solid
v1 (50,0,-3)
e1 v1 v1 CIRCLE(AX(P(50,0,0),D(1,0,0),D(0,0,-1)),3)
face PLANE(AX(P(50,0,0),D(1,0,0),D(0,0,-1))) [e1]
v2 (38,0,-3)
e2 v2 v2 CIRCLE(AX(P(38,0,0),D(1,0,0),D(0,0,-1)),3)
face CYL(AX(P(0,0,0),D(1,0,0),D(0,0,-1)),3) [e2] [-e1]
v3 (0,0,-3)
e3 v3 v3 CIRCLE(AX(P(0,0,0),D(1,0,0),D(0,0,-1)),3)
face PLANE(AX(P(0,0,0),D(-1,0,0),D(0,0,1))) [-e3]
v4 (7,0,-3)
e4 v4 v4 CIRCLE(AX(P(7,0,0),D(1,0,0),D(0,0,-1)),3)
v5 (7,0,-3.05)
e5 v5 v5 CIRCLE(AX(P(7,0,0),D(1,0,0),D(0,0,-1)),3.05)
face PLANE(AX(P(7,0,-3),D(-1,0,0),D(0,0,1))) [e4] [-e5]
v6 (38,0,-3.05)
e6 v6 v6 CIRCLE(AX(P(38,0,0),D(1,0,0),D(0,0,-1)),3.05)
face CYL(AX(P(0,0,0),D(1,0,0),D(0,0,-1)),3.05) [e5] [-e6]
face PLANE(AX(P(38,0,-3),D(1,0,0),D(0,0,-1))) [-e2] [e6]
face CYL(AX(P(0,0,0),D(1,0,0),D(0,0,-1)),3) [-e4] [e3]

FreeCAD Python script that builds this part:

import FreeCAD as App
import Part
import Sketcher

V = App.Vector
Q = App.Units.Quantity


def add_polygon(sketch, points):
    """Adds a closed chain of lines whose ends are joined by coincident constraints."""
    first, n = sketch.GeometryCount, len(points)
    for a, b in zip(points, points[1:] + points[:1]):
        sketch.addGeometry(Part.LineSegment(App.Vector(*a, 0), App.Vector(*b, 0)), False)
    for i in range(n):
        sketch.addConstraint(Sketcher.Constraint("Coincident", first + i, 2, first + (i + 1) % n, 1))

doc = App.newDocument("Part")
body = doc.addObject("PartDesign::Body", "Body")

# Sketch on XZ plane
sketch1 = body.newObject("Sketcher::SketchObject", "Sketch")
sketch1.AttachmentSupport = (doc.getObject("XZ_Plane"), [""])
sketch1.MapMode = "FlatFace"
add_polygon(sketch1, [(0, 0), (50, 0), (50, -3), (38, -3), (38, -3.05), (7, -3.05), (7, -3), (0, -3)])  # lines 0-7
sketch1.addConstraint(Sketcher.Constraint("Horizontal", 0))
sketch1.addConstraint(Sketcher.Constraint("Vertical", 1))
sketch1.addConstraint(Sketcher.Constraint("Horizontal", 2))
sketch1.addConstraint(Sketcher.Constraint("Vertical", 3))
sketch1.addConstraint(Sketcher.Constraint("Horizontal", 4))
sketch1.addConstraint(Sketcher.Constraint("Vertical", 5))
sketch1.addConstraint(Sketcher.Constraint("Horizontal", 6))
sketch1.addConstraint(Sketcher.Constraint("Vertical", 7))
sketch1.addConstraint(Sketcher.Constraint("Coincident", 7, 2, -1, 1))
sketch1.addConstraint(Sketcher.Constraint("Horizontal", 2, 2, 5, 2))
sketch1.addConstraint(Sketcher.Constraint("DistanceX", 0, 1, 0, 2, Q("50 mm")))
sketch1.addConstraint(Sketcher.Constraint("DistanceX", 2, 2, 2, 1, Q("12 mm")))
sketch1.addConstraint(Sketcher.Constraint("DistanceX", 4, 2, 4, 1, Q("31 mm")))
sketch1.addConstraint(Sketcher.Constraint("DistanceY", 1, 2, 1, 1, Q("3 mm")))
sketch1.addConstraint(Sketcher.Constraint("DistanceY", 3, 2, 3, 1, Q("0.05 mm")))
revolution = body.newObject("PartDesign::Revolution", "Revolution")
revolution.Profile = sketch1
revolution.ReferenceAxis = (sketch1, ["H_Axis"])
revolution.Angle = 360

doc.recompute()
